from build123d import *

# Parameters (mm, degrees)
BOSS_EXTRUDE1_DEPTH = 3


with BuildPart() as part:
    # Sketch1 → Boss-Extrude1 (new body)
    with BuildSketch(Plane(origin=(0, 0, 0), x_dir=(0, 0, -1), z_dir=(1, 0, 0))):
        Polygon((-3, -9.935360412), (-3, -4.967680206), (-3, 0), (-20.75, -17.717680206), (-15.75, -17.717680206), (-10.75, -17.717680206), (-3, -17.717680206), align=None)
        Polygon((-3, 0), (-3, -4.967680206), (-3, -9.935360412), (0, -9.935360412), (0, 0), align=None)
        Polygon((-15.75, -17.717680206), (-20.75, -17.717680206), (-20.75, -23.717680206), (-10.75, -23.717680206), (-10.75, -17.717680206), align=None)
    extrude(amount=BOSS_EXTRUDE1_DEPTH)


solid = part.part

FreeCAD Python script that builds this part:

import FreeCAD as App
import Part
import Sketcher

V = App.Vector
Q = App.Units.Quantity

doc = App.newDocument("Part")
body = doc.addObject("PartDesign::Body", "Body")

sketch1 = body.newObject("Sketcher::SketchObject", "Sketch")
sketch1.AttachmentSupport = (doc.getObject("YZ_Plane"), [""])
sketch1.MapMode = "FlatFace"
sketch1.addGeometry([
    Part.LineSegment(V(0, 3, 0), V(-17.7, 20.8, 0)),
    Part.LineSegment(V(-17.7, 20.8, 0), V(-23.7, 20.8, 0)),
    Part.LineSegment(V(-23.7, 20.8, 0), V(-23.7, 10.8, 0)),
    Part.LineSegment(V(-23.7, 10.8, 0), V(-17.7, 10.8, 0)),
    Part.LineSegment(V(-17.7, 10.8, 0), V(-17.7, 3, 0)),
    Part.LineSegment(V(-17.7, 3, 0), V(-9.9, 3, 0)),
    Part.LineSegment(V(-9.9, 3, 0), V(-9.9, 0, 0)),
    Part.LineSegment(V(-9.9, 0, 0), V(0, 0, 0)),
    Part.LineSegment(V(0, 0, 0), V(0, 3, 0)),
], False)
sketch1.addConstraint([
    Sketcher.Constraint("Coincident", 0, 2, 1, 1),
    Sketcher.Constraint("Coincident", 1, 2, 2, 1),
    Sketcher.Constraint("Coincident", 2, 2, 3, 1),
    Sketcher.Constraint("Coincident", 3, 2, 4, 1),
    Sketcher.Constraint("Coincident", 4, 2, 5, 1),
    Sketcher.Constraint("Coincident", 5, 2, 6, 1),
    Sketcher.Constraint("Coincident", 6, 2, 7, 1),
    Sketcher.Constraint("Coincident", 7, 2, 8, 1),
    Sketcher.Constraint("Coincident", 8, 2, 0, 1),
    Sketcher.Constraint("Horizontal", 1),
    Sketcher.Constraint("Vertical", 2),
    Sketcher.Constraint("Horizontal", 3),
    Sketcher.Constraint("Vertical", 4),
    Sketcher.Constraint("Horizontal", 5),
    Sketcher.Constraint("Vertical", 6),
    Sketcher.Constraint("Horizontal", 7),
    Sketcher.Constraint("Vertical", 8),
    Sketcher.Constraint("Coincident", 7, 2, -1, 1),
    Sketcher.Constraint("Horizontal", 5, 2, 8, 2),
    Sketcher.Constraint("Vertical", 0, 2, 3, 2),
    Sketcher.Constraint("DistanceX", 1, 2, 1, 1, Q("6 mm")),
    Sketcher.Constraint("DistanceY", 2, 2, 2, 1, Q("10 mm")),
    Sketcher.Constraint("DistanceY", 6, 2, 6, 1, Q("3 mm")),
    Sketcher.Constraint("DistanceY", 4, 2, 4, 1, Q("7.75 mm")),
    Sketcher.Constraint("DistanceX", 5, 1, 5, 2, Q("7.78232 mm")),
    Sketcher.Constraint("DistanceX", 7, 1, 7, 2, Q("9.93536 mm")),
])
pad1 = body.newObject("PartDesign::Pad", "Pad")
pad1.Profile = sketch1
pad1.Length = 3

doc.recompute()
